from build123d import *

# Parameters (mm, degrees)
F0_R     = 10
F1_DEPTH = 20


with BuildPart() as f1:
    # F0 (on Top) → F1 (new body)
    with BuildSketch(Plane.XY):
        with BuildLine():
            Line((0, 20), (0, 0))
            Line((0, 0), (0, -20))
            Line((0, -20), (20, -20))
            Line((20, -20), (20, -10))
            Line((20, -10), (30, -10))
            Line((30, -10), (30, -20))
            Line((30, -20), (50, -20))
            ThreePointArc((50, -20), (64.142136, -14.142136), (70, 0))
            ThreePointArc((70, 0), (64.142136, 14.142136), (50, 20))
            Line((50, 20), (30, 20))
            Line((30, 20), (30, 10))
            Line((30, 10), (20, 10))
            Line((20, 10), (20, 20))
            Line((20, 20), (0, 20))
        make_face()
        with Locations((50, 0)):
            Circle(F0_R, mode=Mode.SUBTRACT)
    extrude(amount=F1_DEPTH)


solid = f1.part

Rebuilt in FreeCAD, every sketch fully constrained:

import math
import FreeCAD as App
import Part
import Sketcher
from FreeCAD import Vector
Q = App.Units.Quantity

doc = App.newDocument("Part")
body = doc.addObject("PartDesign::Body", "Body")

# Sketch on XY plane
sketch1 = body.newObject("Sketcher::SketchObject", "Sketch")
sketch1.AttachmentSupport = (doc.getObject("XY_Plane"), [""])
sketch1.MapMode = "FlatFace"
sketch1.addGeometry([
    Part.LineSegment(Vector(0, 20, 0), Vector(0, -20, 0)),  # 0
    Part.LineSegment(Vector(0, -20, 0), Vector(20, -20, 0)),  # 1
    Part.LineSegment(Vector(20, -20, 0), Vector(20, -10, 0)),  # 2
    Part.LineSegment(Vector(20, -10, 0), Vector(30, -10, 0)),  # 3
    Part.LineSegment(Vector(30, -10, 0), Vector(30, -20, 0)),  # 4
    Part.LineSegment(Vector(30, -20, 0), Vector(50, -20, 0)),  # 5
    Part.ArcOfCircle(Part.Circle(Vector(50.000001, -0.000001, 0), Vector(0, 0, 1), 19.999999), math.radians(-90.000004), math.radians(0.000004)),  # 6
    Part.ArcOfCircle(Part.Circle(Vector(50.000001, 0.000001, 0), Vector(0, 0, 1), 19.999999), math.radians(-0.000004), math.radians(90.000004)),  # 7
    Part.LineSegment(Vector(50, 20, 0), Vector(30, 20, 0)),  # 8
    Part.LineSegment(Vector(30, 20, 0), Vector(30, 10, 0)),  # 9
    Part.LineSegment(Vector(30, 10, 0), Vector(20, 10, 0)),  # 10
    Part.LineSegment(Vector(20, 10, 0), Vector(20, 20, 0)),  # 11
    Part.LineSegment(Vector(20, 20, 0), Vector(0, 20, 0)),  # 12
    Part.Circle(Vector(50, 0, 0), Vector(0, 0, 1), 10),  # 13
], False)
sketch1.addConstraint([
    Sketcher.Constraint("Coincident", 0, 2, 1, 1),
    Sketcher.Constraint("Coincident", 1, 2, 2, 1),
    Sketcher.Constraint("Coincident", 2, 2, 3, 1),
    Sketcher.Constraint("Coincident", 3, 2, 4, 1),
    Sketcher.Constraint("Coincident", 4, 2, 5, 1),
    Sketcher.Constraint("Tangent", 5, 2, 6, 1),
    Sketcher.Constraint("Tangent", 6, 2, 7, 1),
    Sketcher.Constraint("Tangent", 7, 2, 8, 1),
    Sketcher.Constraint("Coincident", 8, 2, 9, 1),
    Sketcher.Constraint("Coincident", 9, 2, 10, 1),
    Sketcher.Constraint("Coincident", 10, 2, 11, 1),
    Sketcher.Constraint("Coincident", 11, 2, 12, 1),
    Sketcher.Constraint("Coincident", 12, 2, 0, 1),
    Sketcher.Constraint("Vertical", 0),
    Sketcher.Constraint("Horizontal", 1),
    Sketcher.Constraint("Vertical", 2),
    Sketcher.Constraint("Horizontal", 3),
    Sketcher.Constraint("Vertical", 4),
    Sketcher.Constraint("Horizontal", 5),
    Sketcher.Constraint("Horizontal", 8),
    Sketcher.Constraint("Vertical", 9),
    Sketcher.Constraint("Horizontal", 10),
    Sketcher.Constraint("Vertical", 11),
    Sketcher.Constraint("Horizontal", 12),
    Sketcher.Constraint("Coincident", 13, 3, 6, 3),
    Sketcher.Constraint("Equal", 6, 7),
    Sketcher.Constraint("Symmetric", 0, 2, 12, 2, -1, 1),
    Sketcher.Constraint("Symmetric", 4, 2, 8, 2, -1),
    Sketcher.Constraint("Symmetric", 2, 2, 10, 2, -1),
    Sketcher.Constraint("PointOnObject", 6, 2, -1),
    Sketcher.Constraint("Horizontal", 1, 2, 4, 2),
    Sketcher.Constraint("Equal", 1, 5),
    Sketcher.Constraint("Equal", 10, 2),
    Sketcher.Constraint("Diameter", 13, Q("20 mm")),
    Sketcher.Constraint("Radius", 6, Q("19.999999 mm")),
    Sketcher.Constraint("DistanceX", 1, 1, 1, 2, Q("20 mm")),
    Sketcher.Constraint("DistanceX", 3, 1, 3, 2, Q("10 mm")),
])
pad1 = body.newObject("PartDesign::Pad", "Pad")
pad1.Profile = sketch1
pad1.Length = 20

doc.recompute()
